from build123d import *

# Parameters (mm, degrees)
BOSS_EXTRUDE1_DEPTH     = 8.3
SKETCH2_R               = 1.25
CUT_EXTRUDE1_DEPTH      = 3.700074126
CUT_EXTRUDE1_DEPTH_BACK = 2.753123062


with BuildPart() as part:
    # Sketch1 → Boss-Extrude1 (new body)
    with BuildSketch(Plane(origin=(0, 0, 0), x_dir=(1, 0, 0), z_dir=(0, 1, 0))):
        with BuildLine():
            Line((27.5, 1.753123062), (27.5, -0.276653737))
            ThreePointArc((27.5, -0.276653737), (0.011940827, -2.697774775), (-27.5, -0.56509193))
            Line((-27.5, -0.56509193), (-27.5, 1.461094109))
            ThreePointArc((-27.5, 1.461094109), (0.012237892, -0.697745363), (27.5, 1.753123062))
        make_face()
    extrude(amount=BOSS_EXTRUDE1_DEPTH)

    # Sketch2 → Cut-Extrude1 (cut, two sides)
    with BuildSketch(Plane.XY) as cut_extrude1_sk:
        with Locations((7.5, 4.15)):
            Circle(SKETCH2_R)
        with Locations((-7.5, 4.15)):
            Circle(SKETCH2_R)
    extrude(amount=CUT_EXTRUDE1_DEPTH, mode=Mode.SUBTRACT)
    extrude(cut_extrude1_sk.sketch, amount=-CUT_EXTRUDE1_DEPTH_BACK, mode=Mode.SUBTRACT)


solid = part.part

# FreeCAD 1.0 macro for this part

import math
import FreeCAD as App
import Part
import Sketcher
from FreeCAD import Vector

doc = App.newDocument("Part")
params = doc.addObject("Spreadsheet::Sheet", "Params")
for row, (alias, value) in enumerate([
    ("pad1_length", "8.3 mm"),
    ("sketch2_diameter", "2.5 mm"),
], start=1):
    params.set(f"A{row}", alias)
    params.set(f"B{row}", "=" + value)
    params.setAlias(f"B{row}", alias)

body = doc.addObject("PartDesign::Body", "Body")

sketch1 = body.newObject("Sketcher::SketchObject", "Sketch")
sketch1.AttachmentSupport = (doc.getObject("XZ_Plane"), [""])
sketch1.MapMode = "FlatFace"
sketch1.addGeometry(Part.LineSegment(Vector(27.5, 0.3, 0), Vector(27.5, -1.8, 0)), False)
sketch1.addGeometry(Part.ArcOfCircle(Part.Circle(Vector(-0.9, -164.5, 0), Vector(0, 0, 1), 165.2), math.radians(80.11), math.radians(99.28)), False)
sketch1.addGeometry(Part.LineSegment(Vector(-27.5, -1.5, 0), Vector(-27.5, 0.6, 0)), False)
sketch1.addGeometry(Part.ArcOfCircle(Part.Circle(Vector(-0.9, -164.5, 0), Vector(0, 0, 1), 167.2), math.radians(80.23), math.radians(99.17)), False)
sketch1.addConstraint(Sketcher.Constraint("Coincident", 0, 2, 1, 1))
sketch1.addConstraint(Sketcher.Constraint("Coincident", 1, 2, 2, 1))
sketch1.addConstraint(Sketcher.Constraint("Coincident", 2, 2, 3, 2))
sketch1.addConstraint(Sketcher.Constraint("Coincident", 3, 1, 0, 1))
sketch1.addConstraint(Sketcher.Constraint("Vertical", 0))
sketch1.addConstraint(Sketcher.Constraint("Vertical", 2))
sketch1.addConstraint(Sketcher.Constraint("Coincident", 3, 3, 1, 3))
sketch1.addConstraint(Sketcher.Constraint("DistanceX", 1, 2, 0, 2, 55.0))
sketch1.addConstraint(Sketcher.Constraint("DistanceX", -1, 1, 0, 2, 27.5))
sketch1.addConstraint(Sketcher.Constraint("Radius", 1, 165.210704))
sketch1.addConstraint(Sketcher.Constraint("Radius", 3, 167.210704))
sketch1.addConstraint(Sketcher.Constraint("DistanceY", 1, 3, -1, 1, 164.51063))
sketch1.addConstraint(Sketcher.Constraint("DistanceY", -1, 1, 2, 2, 0.565092))
pad1 = body.newObject("PartDesign::Pad", "Pad")
pad1.Profile = sketch1
pad1.setExpression("Length", "Params.pad1_length")
pad1.Reversed = True

sketch2 = body.newObject("Sketcher::SketchObject", "Sketch001")
sketch2.AttachmentSupport = (doc.getObject("XY_Plane"), [""])
sketch2.MapMode = "FlatFace"
sketch2.addGeometry(Part.Circle(Vector(7.5, 4.2, 0), Vector(0, 0, 1), 1.2), False)
sketch2.addGeometry(Part.Circle(Vector(-7.5, 4.2, 0), Vector(0, 0, 1), 1.2), False)
sketch2.addConstraint(Sketcher.Constraint("Equal", 0, 1))
sketch2.addConstraint(Sketcher.Constraint("Symmetric", 0, 3, 1, 3, -2))
sketch2.addConstraint(Sketcher.Constraint("Diameter", 0, 2.5))
sketch2.addConstraint(Sketcher.Constraint("DistanceX", 1, 3, 0, 3, 15.0))
sketch2.addConstraint(Sketcher.Constraint("DistanceY", -1, 1, 0, 3, 4.15))
sketch2.setExpression("Constraints[2]", "Params.sketch2_diameter")
pocket1 = body.newObject("PartDesign::Pocket", "Pocket")
pocket1.Profile = sketch2
pocket1.Type = "ThroughAll"
pocket1.Midplane = True

doc.recompute()
